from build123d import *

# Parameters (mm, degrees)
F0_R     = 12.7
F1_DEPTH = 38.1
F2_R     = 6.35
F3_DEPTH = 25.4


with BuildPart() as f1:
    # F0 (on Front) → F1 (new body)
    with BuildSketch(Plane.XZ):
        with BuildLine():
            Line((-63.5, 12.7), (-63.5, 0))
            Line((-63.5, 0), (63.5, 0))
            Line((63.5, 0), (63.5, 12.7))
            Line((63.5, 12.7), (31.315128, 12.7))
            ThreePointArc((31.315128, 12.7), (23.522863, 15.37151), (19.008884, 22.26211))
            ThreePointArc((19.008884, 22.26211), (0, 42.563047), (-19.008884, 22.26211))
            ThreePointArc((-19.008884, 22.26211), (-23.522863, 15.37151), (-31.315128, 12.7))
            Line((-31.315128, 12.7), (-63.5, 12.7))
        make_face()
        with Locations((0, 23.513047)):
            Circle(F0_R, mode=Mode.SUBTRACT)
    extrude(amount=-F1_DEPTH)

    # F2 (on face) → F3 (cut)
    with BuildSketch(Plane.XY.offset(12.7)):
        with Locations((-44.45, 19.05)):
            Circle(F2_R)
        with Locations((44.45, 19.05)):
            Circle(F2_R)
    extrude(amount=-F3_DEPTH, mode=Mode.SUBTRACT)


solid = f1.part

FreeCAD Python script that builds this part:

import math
import FreeCAD as App
import Part
import Sketcher

V = App.Vector
Q = App.Units.Quantity

doc = App.newDocument("Part")
params = doc.addObject("Spreadsheet::Sheet", "Params")
for row, (alias, value) in enumerate([
    ("sketch1_diameter", "1 in"),
    ("sketch1_width", "5 in"),
    ("sketch1_radius", "0.75 in"),
    ("sketch1_height", "0.5 in"),
    ("pad1_length", "1.5 in"),
    ("sketch2_diameter", "0.5 in"),
    ("pocket1_length", "1 in"),
], start=1):
    params.set(f"A{row}", alias)
    params.set(f"B{row}", "=" + value)
    params.setAlias(f"B{row}", alias)

body = doc.addObject("PartDesign::Body", "Body")

sketch1 = body.newObject("Sketcher::SketchObject", "Sketch")
sketch1.AttachmentSupport = (doc.getObject("XZ_Plane"), [""])
sketch1.MapMode = "FlatFace"
sketch1.addGeometry([
    Part.LineSegment(V(-64, 13, 0), V(-64, 0, 0)),
    Part.LineSegment(V(-64, 0, 0), V(64, 0, 0)),
    Part.LineSegment(V(64, 0, 0), V(64, 13, 0)),
    Part.LineSegment(V(64, 13, 0), V(31, 13, 0)),
    Part.ArcOfCircle(Part.Circle(V(31, 25, 0), V(0, 0, 1), 13), math.radians(-166), math.radians(-90)),
    Part.ArcOfCircle(Part.Circle(V(0, 24, 0), V(0, 0, 1), 19), math.radians(-4), math.radians(184)),
    Part.ArcOfCircle(Part.Circle(V(-31, 25, 0), V(0, 0, 1), 13), math.radians(-90), math.radians(-14)),
    Part.LineSegment(V(-31, 13, 0), V(-64, 13, 0)),
    Part.Circle(V(0, 24, 0), V(0, 0, 1), 13),
], False)
sketch1.addConstraint([
    Sketcher.Constraint("Coincident", 0, 2, 1, 1),
    Sketcher.Constraint("Coincident", 1, 2, 2, 1),
    Sketcher.Constraint("Coincident", 2, 2, 3, 1),
    Sketcher.Constraint("Tangent", 3, 2, 4, 2),
    Sketcher.Constraint("Coincident", 4, 1, 5, 1),
    Sketcher.Constraint("Coincident", 5, 2, 6, 2),
    Sketcher.Constraint("Tangent", 6, 1, 7, 1),
    Sketcher.Constraint("Coincident", 7, 2, 0, 1),
    Sketcher.Constraint("Vertical", 0),
    Sketcher.Constraint("Horizontal", 1),
    Sketcher.Constraint("Vertical", 2),
    Sketcher.Constraint("Horizontal", 3),
    Sketcher.Constraint("Horizontal", 7),
    Sketcher.Constraint("Coincident", 8, 3, 5, 3),
    Sketcher.Constraint("Equal", 4, 6),
    Sketcher.Constraint("Equal", 6, 8),
    Sketcher.Constraint("Symmetric", 0, 2, 1, 2, -1, 1),
    Sketcher.Constraint("Symmetric", 4, 3, 6, 3, -2),
    Sketcher.Constraint("PointOnObject", 5, 3, -2),
    Sketcher.Constraint("Diameter", 8, Q("1 in")),
    Sketcher.Constraint("DistanceX", 1, 1, 1, 2, Q("5 in")),
    Sketcher.Constraint("Radius", 5, Q("0.75 in")),
    Sketcher.Constraint("DistanceY", 0, 2, 0, 1, Q("0.5 in")),
    Sketcher.Constraint("DistanceX", 3, 2, 3, 1, Q("32.184872 mm")),
    Sketcher.Constraint("DistanceY", -1, 1, 4, 1, Q("22.26211 mm")),
])
sketch1.setExpression("Constraints[19]", "Params.sketch1_diameter")
sketch1.setExpression("Constraints[20]", "Params.sketch1_width")
sketch1.setExpression("Constraints[21]", "Params.sketch1_radius")
sketch1.setExpression("Constraints[22]", "Params.sketch1_height")
pad1 = body.newObject("PartDesign::Pad", "Pad")
pad1.Profile = sketch1
pad1.setExpression("Length", "Params.pad1_length")
pad1.Reversed = True

sketch2 = body.newObject("Sketcher::SketchObject", "Sketch001")
sketch2.AttachmentSupport = (doc.getObject("XY_Plane"), [""])
sketch2.MapMode = "FlatFace"
sketch2.AttachmentOffset = App.Placement(V(0, 0, 0.5 * 25.4), App.Rotation())
sketch2.addGeometry([
    Part.Circle(V(-44, 19, 0), V(0, 0, 1), 6),
    Part.Circle(V(44, 19, 0), V(0, 0, 1), 6),
], False)
sketch2.addConstraint([
    Sketcher.Constraint("Equal", 0, 1),
    Sketcher.Constraint("Symmetric", 0, 3, 1, 3, -2),
    Sketcher.Constraint("Diameter", 0, Q("0.5 in")),
    Sketcher.Constraint("DistanceX", 0, 3, 1, 3, Q("3.5 in")),
    Sketcher.Constraint("DistanceY", -1, 1, 0, 3, Q("0.75 in")),
])
sketch2.setExpression("Constraints[2]", "Params.sketch2_diameter")
pocket1 = body.newObject("PartDesign::Pocket", "Pocket")
pocket1.Profile = sketch2
pocket1.setExpression("Length", "Params.pocket1_length")

doc.recompute()
